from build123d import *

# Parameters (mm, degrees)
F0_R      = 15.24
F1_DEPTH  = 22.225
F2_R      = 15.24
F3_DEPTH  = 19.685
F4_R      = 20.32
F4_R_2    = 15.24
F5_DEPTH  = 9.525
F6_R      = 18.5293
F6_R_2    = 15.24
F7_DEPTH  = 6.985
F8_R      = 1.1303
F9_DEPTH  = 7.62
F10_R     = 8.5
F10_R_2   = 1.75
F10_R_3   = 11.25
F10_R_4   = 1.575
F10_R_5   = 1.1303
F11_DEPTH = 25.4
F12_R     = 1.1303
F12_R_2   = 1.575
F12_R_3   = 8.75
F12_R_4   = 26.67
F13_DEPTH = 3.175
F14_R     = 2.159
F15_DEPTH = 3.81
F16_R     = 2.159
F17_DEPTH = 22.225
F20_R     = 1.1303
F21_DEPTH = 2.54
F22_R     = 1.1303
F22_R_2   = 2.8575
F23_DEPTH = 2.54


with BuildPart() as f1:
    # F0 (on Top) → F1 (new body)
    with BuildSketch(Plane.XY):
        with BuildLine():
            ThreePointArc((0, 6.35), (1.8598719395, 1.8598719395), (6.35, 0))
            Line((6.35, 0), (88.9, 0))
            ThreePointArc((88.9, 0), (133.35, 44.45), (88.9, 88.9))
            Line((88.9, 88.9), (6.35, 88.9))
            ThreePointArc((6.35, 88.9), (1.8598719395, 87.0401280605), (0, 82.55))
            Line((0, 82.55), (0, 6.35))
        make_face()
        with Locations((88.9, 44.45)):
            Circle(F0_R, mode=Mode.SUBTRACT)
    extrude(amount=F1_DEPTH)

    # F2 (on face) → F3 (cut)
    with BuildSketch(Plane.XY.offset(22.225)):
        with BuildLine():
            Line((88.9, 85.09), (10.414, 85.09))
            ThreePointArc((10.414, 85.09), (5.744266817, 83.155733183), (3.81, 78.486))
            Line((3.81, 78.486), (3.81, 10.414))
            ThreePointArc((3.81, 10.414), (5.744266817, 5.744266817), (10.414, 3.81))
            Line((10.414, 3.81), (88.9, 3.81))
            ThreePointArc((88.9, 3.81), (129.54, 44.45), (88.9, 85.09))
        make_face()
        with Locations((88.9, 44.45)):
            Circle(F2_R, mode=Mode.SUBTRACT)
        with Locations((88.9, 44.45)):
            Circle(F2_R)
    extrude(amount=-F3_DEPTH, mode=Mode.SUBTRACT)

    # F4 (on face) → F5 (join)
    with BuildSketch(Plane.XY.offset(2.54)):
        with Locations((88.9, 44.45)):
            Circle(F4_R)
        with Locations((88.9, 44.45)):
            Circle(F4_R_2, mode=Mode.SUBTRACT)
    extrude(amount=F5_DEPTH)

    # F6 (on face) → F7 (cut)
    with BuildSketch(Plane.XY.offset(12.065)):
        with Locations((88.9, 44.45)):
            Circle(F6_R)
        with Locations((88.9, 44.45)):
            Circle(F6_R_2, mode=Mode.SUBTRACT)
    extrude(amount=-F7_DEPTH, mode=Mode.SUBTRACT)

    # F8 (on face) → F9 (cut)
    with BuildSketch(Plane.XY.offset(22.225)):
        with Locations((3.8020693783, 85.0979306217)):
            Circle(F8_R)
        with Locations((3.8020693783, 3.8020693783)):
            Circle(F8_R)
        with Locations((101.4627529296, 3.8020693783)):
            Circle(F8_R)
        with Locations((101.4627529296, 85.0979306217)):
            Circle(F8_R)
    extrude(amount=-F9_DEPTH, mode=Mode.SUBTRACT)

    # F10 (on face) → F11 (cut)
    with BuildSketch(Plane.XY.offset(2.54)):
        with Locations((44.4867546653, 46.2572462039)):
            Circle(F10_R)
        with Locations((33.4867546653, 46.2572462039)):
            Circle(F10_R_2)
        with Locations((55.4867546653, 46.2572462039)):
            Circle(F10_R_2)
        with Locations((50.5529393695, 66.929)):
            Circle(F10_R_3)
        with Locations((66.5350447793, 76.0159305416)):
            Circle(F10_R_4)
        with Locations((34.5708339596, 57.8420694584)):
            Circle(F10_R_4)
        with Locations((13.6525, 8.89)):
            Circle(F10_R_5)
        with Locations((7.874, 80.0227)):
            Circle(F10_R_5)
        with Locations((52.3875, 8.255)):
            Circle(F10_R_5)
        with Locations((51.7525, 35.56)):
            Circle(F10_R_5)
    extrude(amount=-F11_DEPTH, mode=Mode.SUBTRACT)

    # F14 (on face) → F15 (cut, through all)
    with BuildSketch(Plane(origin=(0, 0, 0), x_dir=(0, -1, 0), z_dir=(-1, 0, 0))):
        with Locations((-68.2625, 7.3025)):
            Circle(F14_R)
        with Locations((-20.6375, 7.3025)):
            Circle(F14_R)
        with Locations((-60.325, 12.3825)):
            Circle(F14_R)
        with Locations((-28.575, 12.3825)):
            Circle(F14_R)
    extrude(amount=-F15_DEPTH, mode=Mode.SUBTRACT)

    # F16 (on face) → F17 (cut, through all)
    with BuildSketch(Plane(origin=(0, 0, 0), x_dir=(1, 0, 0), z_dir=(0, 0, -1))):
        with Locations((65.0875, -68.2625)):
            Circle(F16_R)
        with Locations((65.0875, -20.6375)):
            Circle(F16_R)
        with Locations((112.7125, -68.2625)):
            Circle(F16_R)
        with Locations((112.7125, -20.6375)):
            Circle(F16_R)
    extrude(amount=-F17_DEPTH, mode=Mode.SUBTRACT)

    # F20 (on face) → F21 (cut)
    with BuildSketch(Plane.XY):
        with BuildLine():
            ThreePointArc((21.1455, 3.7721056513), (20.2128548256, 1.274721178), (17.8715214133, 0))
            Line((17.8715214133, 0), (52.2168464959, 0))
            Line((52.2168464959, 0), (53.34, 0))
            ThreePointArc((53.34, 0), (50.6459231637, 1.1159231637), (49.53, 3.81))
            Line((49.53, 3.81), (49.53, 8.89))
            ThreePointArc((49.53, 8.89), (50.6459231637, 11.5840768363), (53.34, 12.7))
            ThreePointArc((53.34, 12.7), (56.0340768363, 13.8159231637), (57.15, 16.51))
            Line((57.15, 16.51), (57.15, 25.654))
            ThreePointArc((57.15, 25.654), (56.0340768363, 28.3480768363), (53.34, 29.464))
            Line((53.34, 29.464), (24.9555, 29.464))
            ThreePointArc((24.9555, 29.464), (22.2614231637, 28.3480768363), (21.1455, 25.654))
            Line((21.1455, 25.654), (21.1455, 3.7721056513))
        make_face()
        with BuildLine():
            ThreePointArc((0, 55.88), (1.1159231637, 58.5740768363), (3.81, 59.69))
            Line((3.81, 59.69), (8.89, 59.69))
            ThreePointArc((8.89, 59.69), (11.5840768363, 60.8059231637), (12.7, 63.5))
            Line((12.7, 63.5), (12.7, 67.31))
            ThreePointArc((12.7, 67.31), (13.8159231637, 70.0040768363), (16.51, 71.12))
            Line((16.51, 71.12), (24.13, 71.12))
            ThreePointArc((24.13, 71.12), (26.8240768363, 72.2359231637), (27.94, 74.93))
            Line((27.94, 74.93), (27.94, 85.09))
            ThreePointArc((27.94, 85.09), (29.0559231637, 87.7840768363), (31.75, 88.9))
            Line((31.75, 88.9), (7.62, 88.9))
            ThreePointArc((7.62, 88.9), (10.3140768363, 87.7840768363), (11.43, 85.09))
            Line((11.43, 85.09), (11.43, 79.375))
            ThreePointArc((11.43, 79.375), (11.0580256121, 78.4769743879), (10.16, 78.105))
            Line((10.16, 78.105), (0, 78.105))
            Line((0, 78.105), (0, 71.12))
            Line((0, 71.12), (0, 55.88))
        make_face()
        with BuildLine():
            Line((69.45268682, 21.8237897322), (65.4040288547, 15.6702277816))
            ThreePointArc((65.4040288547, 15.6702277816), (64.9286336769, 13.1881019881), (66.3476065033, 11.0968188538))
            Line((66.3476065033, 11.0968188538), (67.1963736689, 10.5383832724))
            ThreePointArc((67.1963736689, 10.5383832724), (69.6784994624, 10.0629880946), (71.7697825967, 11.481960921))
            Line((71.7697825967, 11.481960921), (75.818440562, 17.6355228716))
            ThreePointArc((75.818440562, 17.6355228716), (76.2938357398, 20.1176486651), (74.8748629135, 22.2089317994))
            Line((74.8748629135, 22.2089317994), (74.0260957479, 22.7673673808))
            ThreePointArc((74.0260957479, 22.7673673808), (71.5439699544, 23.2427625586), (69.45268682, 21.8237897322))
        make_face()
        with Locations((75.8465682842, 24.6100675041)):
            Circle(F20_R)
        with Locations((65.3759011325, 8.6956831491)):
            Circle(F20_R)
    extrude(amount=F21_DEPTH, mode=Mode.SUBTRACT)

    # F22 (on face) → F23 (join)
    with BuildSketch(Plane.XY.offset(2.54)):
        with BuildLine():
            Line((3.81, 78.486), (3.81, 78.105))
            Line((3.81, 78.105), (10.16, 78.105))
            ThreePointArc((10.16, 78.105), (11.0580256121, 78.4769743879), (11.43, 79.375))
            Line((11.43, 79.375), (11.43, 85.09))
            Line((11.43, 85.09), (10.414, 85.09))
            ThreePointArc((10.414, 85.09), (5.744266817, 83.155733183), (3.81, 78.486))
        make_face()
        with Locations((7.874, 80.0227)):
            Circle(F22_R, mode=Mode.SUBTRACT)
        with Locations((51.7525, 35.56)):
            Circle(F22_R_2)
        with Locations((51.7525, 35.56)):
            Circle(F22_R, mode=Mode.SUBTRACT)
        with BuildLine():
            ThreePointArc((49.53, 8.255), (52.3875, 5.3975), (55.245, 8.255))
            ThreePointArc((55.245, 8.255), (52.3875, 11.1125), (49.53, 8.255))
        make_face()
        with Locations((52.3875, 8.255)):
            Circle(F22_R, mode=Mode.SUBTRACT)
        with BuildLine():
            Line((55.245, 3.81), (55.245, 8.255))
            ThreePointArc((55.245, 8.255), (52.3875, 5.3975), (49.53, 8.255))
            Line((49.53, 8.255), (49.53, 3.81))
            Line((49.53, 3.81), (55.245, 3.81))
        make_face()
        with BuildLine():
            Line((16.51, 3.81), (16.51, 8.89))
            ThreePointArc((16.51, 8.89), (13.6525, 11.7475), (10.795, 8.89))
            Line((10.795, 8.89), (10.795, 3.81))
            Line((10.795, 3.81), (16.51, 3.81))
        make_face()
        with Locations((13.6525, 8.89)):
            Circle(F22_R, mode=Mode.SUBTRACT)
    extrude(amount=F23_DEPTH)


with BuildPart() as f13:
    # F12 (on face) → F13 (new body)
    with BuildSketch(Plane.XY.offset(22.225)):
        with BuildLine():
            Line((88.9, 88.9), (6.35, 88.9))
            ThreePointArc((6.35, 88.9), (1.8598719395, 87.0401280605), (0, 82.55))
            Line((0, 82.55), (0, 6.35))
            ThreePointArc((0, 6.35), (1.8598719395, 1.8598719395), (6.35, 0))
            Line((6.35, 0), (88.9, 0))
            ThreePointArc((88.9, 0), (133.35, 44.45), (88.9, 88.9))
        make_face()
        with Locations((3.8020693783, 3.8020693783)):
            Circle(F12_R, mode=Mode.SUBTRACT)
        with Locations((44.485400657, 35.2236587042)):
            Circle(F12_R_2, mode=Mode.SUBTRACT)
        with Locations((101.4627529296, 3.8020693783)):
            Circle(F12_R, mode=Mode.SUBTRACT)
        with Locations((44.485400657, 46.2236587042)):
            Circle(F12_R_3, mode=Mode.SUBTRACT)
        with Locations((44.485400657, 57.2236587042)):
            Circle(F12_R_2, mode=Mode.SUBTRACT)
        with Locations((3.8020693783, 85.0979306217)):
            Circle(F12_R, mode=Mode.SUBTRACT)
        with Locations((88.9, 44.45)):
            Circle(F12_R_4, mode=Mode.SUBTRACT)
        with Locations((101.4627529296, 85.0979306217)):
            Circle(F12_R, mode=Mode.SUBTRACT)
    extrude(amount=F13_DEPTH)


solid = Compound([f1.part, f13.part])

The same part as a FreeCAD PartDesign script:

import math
import FreeCAD as App
import Part
import Sketcher

V = App.Vector
Q = App.Units.Quantity

doc = App.newDocument("Part")
body = doc.addObject("PartDesign::Body", "Body")

# Sketch on XY plane
sketch1 = doc.addObject("Sketcher::SketchObject", "Sketch")
body.addObject(sketch1)
sketch1.AttachmentSupport = (doc.XY_Plane, [""])
sketch1.MapMode = "FlatFace"
sketch1.addGeometry([
    Part.ArcOfCircle(Part.Circle(V(6.35, 6.35, 0), V(0, 0, 1), 6.35), math.radians(180), math.radians(270)),  # 0
    Part.LineSegment(V(6.35, 0, 0), V(88.9, 0, 0)),  # 1
    Part.ArcOfCircle(Part.Circle(V(88.9, 44.45, 0), V(0, 0, 1), 44.45), math.radians(-90), math.radians(90)),  # 2
    Part.LineSegment(V(88.9, 88.9, 0), V(6.35, 88.9, 0)),  # 3
    Part.ArcOfCircle(Part.Circle(V(6.35, 82.55, 0), V(0, 0, 1), 6.35), math.radians(90), math.radians(180)),  # 4
    Part.LineSegment(V(0, 82.55, 0), V(0, 6.35, 0)),  # 5
    Part.Circle(V(88.9, 44.45, 0), V(0, 0, 1), 15.24),  # 6
], False)
sketch1.addConstraint([
    Sketcher.Constraint("Tangent", 0, 2, 1, 1),
    Sketcher.Constraint("Tangent", 1, 2, 2, 1),
    Sketcher.Constraint("Tangent", 2, 2, 3, 1),
    Sketcher.Constraint("Tangent", 3, 2, 4, 1),
    Sketcher.Constraint("Tangent", 4, 2, 5, 1),
    Sketcher.Constraint("Tangent", 5, 2, 0, 1),
    Sketcher.Constraint("Horizontal", 1),
    Sketcher.Constraint("Horizontal", 3),
    Sketcher.Constraint("Vertical", 5),
    Sketcher.Constraint("Coincident", 6, 3, 2, 3),
    Sketcher.Constraint("Equal", 0, 4),
    Sketcher.Constraint("PointOnObject", 0, 2, -1),
    Sketcher.Constraint("PointOnObject", 4, 2, -2),
    Sketcher.Constraint("Diameter", 6, Q("1.2 in")),
    Sketcher.Constraint("DistanceY", 5, 2, 5, 1, Q("3 in")),
    Sketcher.Constraint("Radius", 0, Q("0.25 in")),
    Sketcher.Constraint("DistanceX", 1, 1, 1, 2, Q("3.25 in")),
])
pad1 = doc.addObject("PartDesign::Pad", "Pad")
body.addObject(pad1)
pad1.Profile = sketch1
pad1.Length = Q("0.875 in")

# Sketch on XY plane
sketch2 = doc.addObject("Sketcher::SketchObject", "Sketch001")
body.addObject(sketch2)
sketch2.AttachmentSupport = (doc.XY_Plane, [""])
sketch2.MapMode = "FlatFace"
sketch2.AttachmentOffset = App.Placement(V(0, 0, 0.875 * 25.4), App.Rotation())
sketch2.addGeometry([
    Part.LineSegment(V(88.9, 85.09, 0), V(10.414, 85.09, 0)),  # 0
    Part.ArcOfCircle(Part.Circle(V(10.414, 78.486, 0), V(0, 0, 1), 6.604), math.radians(90), math.radians(180)),  # 1
    Part.LineSegment(V(3.81, 78.486, 0), V(3.81, 10.414, 0)),  # 2
    Part.ArcOfCircle(Part.Circle(V(10.414, 10.414, 0), V(0, 0, 1), 6.604), math.radians(180), math.radians(270)),  # 3
    Part.LineSegment(V(10.414, 3.81, 0), V(88.9, 3.81, 0)),  # 4
    Part.ArcOfCircle(Part.Circle(V(88.9, 44.45, 0), V(0, 0, 1), 40.64), math.radians(-90), math.radians(90)),  # 5
], False)
sketch2.addConstraint([
    Sketcher.Constraint("Tangent", 0, 2, 1, 1),
    Sketcher.Constraint("Tangent", 1, 2, 2, 1),
    Sketcher.Constraint("Tangent", 2, 2, 3, 1),
    Sketcher.Constraint("Tangent", 3, 2, 4, 1),
    Sketcher.Constraint("Tangent", 4, 2, 5, 1),
    Sketcher.Constraint("Tangent", 5, 2, 0, 1),
    Sketcher.Constraint("Horizontal", 0),
    Sketcher.Constraint("Vertical", 2),
    Sketcher.Constraint("Horizontal", 4),
    Sketcher.Constraint("Equal", 1, 3),
    Sketcher.Constraint("Radius", 5, Q("1.6 in")),
    Sketcher.Constraint("Radius", 1, Q("0.26 in")),
    Sketcher.Constraint("DistanceX", 0, 2, 0, 1, Q("3.09 in")),
    Sketcher.Constraint("DistanceX", -1, 1, 5, 3, Q("3.5 in")),
    Sketcher.Constraint("DistanceY", -1, 1, 1, 3, Q("3.09 in")),
])
pocket1 = doc.addObject("PartDesign::Pocket", "Pocket")
body.addObject(pocket1)
pocket1.Profile = sketch2
pocket1.Length = Q("0.775 in")

# Sketch on XY plane
sketch3 = doc.addObject("Sketcher::SketchObject", "Sketch002")
body.addObject(sketch3)
sketch3.AttachmentSupport = (doc.XY_Plane, [""])
sketch3.MapMode = "FlatFace"
sketch3.AttachmentOffset = App.Placement(V(0, 0, 0.1 * 25.4), App.Rotation())
sketch3.addGeometry([
    Part.Circle(V(88.9, 44.45, 0), V(0, 0, 1), 20.32),
    Part.Circle(V(88.9, 44.45, 0), V(0, 0, 1), 15.24),
], False)
sketch3.addConstraint([
    Sketcher.Constraint("Coincident", 1, 3, 0, 3),
    Sketcher.Constraint("Diameter", 0, Q("1.6 in")),
    Sketcher.Constraint("Diameter", 1, Q("1.2 in")),
    Sketcher.Constraint("DistanceX", -1, 1, 0, 3, Q("3.5 in")),
    Sketcher.Constraint("DistanceY", -1, 1, 0, 3, Q("1.75 in")),
])
pad2 = doc.addObject("PartDesign::Pad", "Pad001")
body.addObject(pad2)
pad2.Profile = sketch3
pad2.Length = Q("0.375 in")

# Sketch on XY plane
sketch4 = doc.addObject("Sketcher::SketchObject", "Sketch003")
body.addObject(sketch4)
sketch4.AttachmentSupport = (doc.XY_Plane, [""])
sketch4.MapMode = "FlatFace"
sketch4.AttachmentOffset = App.Placement(V(0, 0, 0.475 * 25.4), App.Rotation())
sketch4.addGeometry([
    Part.Circle(V(88.9, 44.45, 0), V(0, 0, 1), 18.5293),
    Part.Circle(V(88.9, 44.45, 0), V(0, 0, 1), 15.24),
], False)
sketch4.addConstraint([
    Sketcher.Constraint("Coincident", 1, 3, 0, 3),
    Sketcher.Constraint("Diameter", 1, Q("1.2 in")),
    Sketcher.Constraint("Diameter", 0, Q("1.459 in")),
    Sketcher.Constraint("DistanceX", -1, 1, 0, 3, Q("3.5 in")),
    Sketcher.Constraint("DistanceY", -1, 1, 0, 3, Q("1.75 in")),
])
pocket2 = doc.addObject("PartDesign::Pocket", "Pocket001")
body.addObject(pocket2)
pocket2.Profile = sketch4
pocket2.Length = Q("0.275 in")

# Sketch on XY plane
sketch5 = doc.addObject("Sketcher::SketchObject", "Sketch004")
body.addObject(sketch5)
sketch5.AttachmentSupport = (doc.XY_Plane, [""])
sketch5.MapMode = "FlatFace"
sketch5.AttachmentOffset = App.Placement(V(0, 0, 0.875 * 25.4), App.Rotation())
sketch5.addGeometry([
    Part.Circle(V(3.802069, 85.097931, 0), V(0, 0, 1), 1.1303),
    Part.Circle(V(3.802069, 3.802069, 0), V(0, 0, 1), 1.1303),
    Part.Circle(V(101.462753, 3.802069, 0), V(0, 0, 1), 1.1303),
    Part.Circle(V(101.462753, 85.097931, 0), V(0, 0, 1), 1.1303),
], False)
sketch5.addConstraint([
    Sketcher.Constraint("Equal", 0, 1),
    Sketcher.Constraint("Equal", 1, 2),
    Sketcher.Constraint("Equal", 2, 3),
    Sketcher.Constraint("Horizontal", 1, 3, 2, 3),
    Sketcher.Constraint("Horizontal", 0, 3, 3, 3),
    Sketcher.Constraint("Vertical", 0, 3, 1, 3),
    Sketcher.Constraint("Vertical", 2, 3, 3, 3),
    Sketcher.Constraint("Diameter", 0, Q("0.089 in")),
    Sketcher.Constraint("DistanceX", -1, 1, 0, 3, Q("3.802069 mm")),
    Sketcher.Constraint("DistanceY", -1, 1, 0, 3, Q("85.097931 mm")),
    Sketcher.Constraint("DistanceY", -1, 1, 1, 3, Q("3.802069 mm")),
    Sketcher.Constraint("DistanceX", -1, 1, 2, 3, Q("101.462753 mm")),
])
pocket3 = doc.addObject("PartDesign::Pocket", "Pocket002")
body.addObject(pocket3)
pocket3.Profile = sketch5
pocket3.Length = Q("0.3 in")

# Sketch on XY plane
sketch6 = doc.addObject("Sketcher::SketchObject", "Sketch005")
body.addObject(sketch6)
sketch6.AttachmentSupport = (doc.XY_Plane, [""])
sketch6.MapMode = "FlatFace"
sketch6.AttachmentOffset = App.Placement(V(0, 0, 0.1 * 25.4), App.Rotation())
sketch6.addGeometry([
    Part.Circle(V(44.486755, 46.257246, 0), V(0, 0, 1), 8.5),  # 0
    Part.Circle(V(33.486755, 46.257246, 0), V(0, 0, 1), 1.75),  # 1
    Part.Circle(V(55.486755, 46.257246, 0), V(0, 0, 1), 1.75),  # 2
    Part.Circle(V(50.552939, 66.929, 0), V(0, 0, 1), 11.25),  # 3
    Part.Circle(V(66.535045, 76.015931, 0), V(0, 0, 1), 1.575),  # 4
    Part.Circle(V(34.570834, 57.842069, 0), V(0, 0, 1), 1.575),  # 5
    Part.Circle(V(13.6525, 8.89, 0), V(0, 0, 1), 1.1303),  # 6
    Part.Circle(V(7.874, 80.0227, 0), V(0, 0, 1), 1.1303),  # 7
    Part.Circle(V(52.3875, 8.255, 0), V(0, 0, 1), 1.1303),  # 8
    Part.Circle(V(51.7525, 35.56, 0), V(0, 0, 1), 1.1303),  # 9
], False)
sketch6.addConstraint([
    Sketcher.Constraint("Equal", 1, 2),
    Sketcher.Constraint("Equal", 4, 5),
    Sketcher.Constraint("Equal", 6, 7),
    Sketcher.Constraint("Equal", 7, 8),
    Sketcher.Constraint("Equal", 8, 9),
    Sketcher.Constraint("Horizontal", 0, 3, 1, 3),
    Sketcher.Constraint("Horizontal", 1, 3, 2, 3),
    Sketcher.Constraint("Diameter", 6, Q("0.089 in")),
    Sketcher.Constraint("DistanceY", -1, 1, 9, 3, Q("1.4 in")),
    Sketcher.Constraint("Diameter", 0, Q("17 mm")),
    Sketcher.Constraint("Diameter", 1, Q("3.5 mm")),
    Sketcher.Constraint("Diameter", 3, Q("22.5 mm")),
    Sketcher.Constraint("Diameter", 4, Q("3.15 mm")),
    Sketcher.Constraint("DistanceY", -1, 1, 6, 3, Q("0.35 in")),
    Sketcher.Constraint("DistanceX", -1, 1, 7, 3, Q("0.31 in")),
    Sketcher.Constraint("DistanceY", -1, 1, 3, 3, Q("2.635 in")),
    Sketcher.Constraint("DistanceX", -1, 1, 8, 3, Q("2.0625 in")),
    Sketcher.Constraint("DistanceY", -1, 1, 8, 3, Q("0.325 in")),
    Sketcher.Constraint("DistanceX", 6, 3, 8, 3, Q("1.525 in")),
    Sketcher.Constraint("DistanceX", 9, 3, 8, 3, Q("0.025 in")),
    Sketcher.Constraint("DistanceY", -1, 1, 7, 3, Q("3.1505 in")),
    Sketcher.Constraint("DistanceX", 1, 3, 0, 3, Q("11 mm")),
    Sketcher.Constraint("DistanceX", 0, 3, 2, 3, Q("11 mm")),
    Sketcher.Constraint("DistanceX", -1, 1, 3, 3, Q("50.552939 mm")),
    Sketcher.Constraint("DistanceY", -1, 1, 4, 3, Q("76.015931 mm")),
    Sketcher.Constraint("DistanceY", -1, 1, 5, 3, Q("57.842069 mm")),
    Sketcher.Constraint("DistanceX", 2, 3, 4, 3, Q("11.04829 mm")),
    Sketcher.Constraint("DistanceX", 1, 3, 5, 3, Q("1.084079 mm")),
    Sketcher.Constraint("DistanceX", -1, 1, 0, 3, Q("44.486755 mm")),
    Sketcher.Constraint("DistanceY", -1, 1, 0, 3, Q("46.257246 mm")),
])
pocket4 = doc.addObject("PartDesign::Pocket", "Pocket003")
body.addObject(pocket4)
pocket4.Profile = sketch6
pocket4.Length = Q("1 in")

# Sketch on YZ plane
sketch7 = doc.addObject("Sketcher::SketchObject", "Sketch006")
body.addObject(sketch7)
sketch7.AttachmentSupport = (doc.YZ_Plane, [""])
sketch7.MapMode = "FlatFace"
sketch7.addGeometry([
    Part.Circle(V(68.2625, 7.3025, 0), V(0, 0, 1), 2.159),
    Part.Circle(V(20.6375, 7.3025, 0), V(0, 0, 1), 2.159),
    Part.Circle(V(60.325, 12.3825, 0), V(0, 0, 1), 2.159),
    Part.Circle(V(28.575, 12.3825, 0), V(0, 0, 1), 2.159),
], False)
sketch7.addConstraint([
    Sketcher.Constraint("Equal", 0, 1),
    Sketcher.Constraint("Equal", 1, 2),
    Sketcher.Constraint("Equal", 2, 3),
    Sketcher.Constraint("Horizontal", 0, 3, 1, 3),
    Sketcher.Constraint("Horizontal", 2, 3, 3, 3),
    Sketcher.Constraint("Diameter", 0, Q("0.17 in")),
    Sketcher.Constraint("DistanceY", 0, 3, 2, 3, Q("0.2 in")),
    Sketcher.Constraint("DistanceX", 3, 3, 2, 3, Q("1.25 in")),
    Sketcher.Constraint("DistanceX", -1, 1, 0, 3, Q("2.6875 in")),
    Sketcher.Constraint("DistanceX", -1, 1, 1, 3, Q("0.8125 in")),
    Sketcher.Constraint("DistanceX", -1, 1, 2, 3, Q("2.375 in")),
    Sketcher.Constraint("DistanceY", -1, 1, 0, 3, Q("0.2875 in")),
])
pocket5 = doc.addObject("PartDesign::Pocket", "Pocket004")
body.addObject(pocket5)
pocket5.Profile = sketch7
pocket5.Length = Q("0.15 in")
pocket5.Reversed = True

# Sketch on XY plane
sketch8 = doc.addObject("Sketcher::SketchObject", "Sketch007")
body.addObject(sketch8)
sketch8.AttachmentSupport = (doc.XY_Plane, [""])
sketch8.MapMode = "FlatFace"
sketch8.addGeometry([
    Part.Circle(V(65.0875, 68.2625, 0), V(0, 0, 1), 2.159),
    Part.Circle(V(65.0875, 20.6375, 0), V(0, 0, 1), 2.159),
    Part.Circle(V(112.7125, 68.2625, 0), V(0, 0, 1), 2.159),
    Part.Circle(V(112.7125, 20.6375, 0), V(0, 0, 1), 2.159),
], False)
sketch8.addConstraint([
    Sketcher.Constraint("Equal", 0, 1),
    Sketcher.Constraint("Equal", 1, 2),
    Sketcher.Constraint("Equal", 2, 3),
    Sketcher.Constraint("Horizontal", 0, 3, 2, 3),
    Sketcher.Constraint("Horizontal", 1, 3, 3, 3),
    Sketcher.Constraint("Vertical", 0, 3, 1, 3),
    Sketcher.Constraint("Vertical", 2, 3, 3, 3),
    Sketcher.Constraint("Diameter", 0, Q("0.17 in")),
    Sketcher.Constraint("DistanceX", -1, 1, 0, 3, Q("2.5625 in")),
    Sketcher.Constraint("DistanceY", -1, 1, 0, 3, Q("2.6875 in")),
    Sketcher.Constraint("DistanceY", -1, 1, 1, 3, Q("0.8125 in")),
    Sketcher.Constraint("DistanceX", -1, 1, 2, 3, Q("4.4375 in")),
])
pocket6 = doc.addObject("PartDesign::Pocket", "Pocket005")
body.addObject(pocket6)
pocket6.Profile = sketch8
pocket6.Type = "ThroughAll"
pocket6.Reversed = True

# Sketch on XY plane
sketch9 = doc.addObject("Sketcher::SketchObject", "Sketch008")
body.addObject(sketch9)
sketch9.AttachmentSupport = (doc.XY_Plane, [""])
sketch9.MapMode = "FlatFace"
sketch9.addGeometry([
    Part.ArcOfCircle(Part.Circle(V(17.3355, 3.772106, 0), V(0, 0, 1), 3.81), math.radians(-81.912338), math.radians(0)),  # 0
    Part.LineSegment(V(17.871521, 0, 0), V(53.34, 0, 0)),  # 1
    Part.ArcOfCircle(Part.Circle(V(53.34, 3.81, 0), V(0, 0, 1), 3.81), math.radians(180), math.radians(270)),  # 2
    Part.LineSegment(V(49.53, 3.81, 0), V(49.53, 8.89, 0)),  # 3
    Part.ArcOfCircle(Part.Circle(V(53.34, 8.89, 0), V(0, 0, 1), 3.81), math.radians(90), math.radians(180)),  # 4
    Part.ArcOfCircle(Part.Circle(V(53.34, 16.51, 0), V(0, 0, 1), 3.81), math.radians(-90), math.radians(0)),  # 5
    Part.LineSegment(V(57.15, 16.51, 0), V(57.15, 25.654, 0)),  # 6
    Part.ArcOfCircle(Part.Circle(V(53.34, 25.654, 0), V(0, 0, 1), 3.81), math.radians(0), math.radians(90)),  # 7
    Part.LineSegment(V(53.34, 29.464, 0), V(24.9555, 29.464, 0)),  # 8
    Part.ArcOfCircle(Part.Circle(V(24.9555, 25.654, 0), V(0, 0, 1), 3.81), math.radians(90), math.radians(180)),  # 9
    Part.LineSegment(V(21.1455, 25.654, 0), V(21.1455, 3.772106, 0)),  # 10
    Part.ArcOfCircle(Part.Circle(V(3.81, 55.88, 0), V(0, 0, 1), 3.81), math.radians(90), math.radians(180)),  # 11
    Part.LineSegment(V(3.81, 59.69, 0), V(8.89, 59.69, 0)),  # 12
    Part.ArcOfCircle(Part.Circle(V(8.89, 63.5, 0), V(0, 0, 1), 3.81), math.radians(-90), math.radians(0)),  # 13
    Part.LineSegment(V(12.7, 63.5, 0), V(12.7, 67.31, 0)),  # 14
    Part.ArcOfCircle(Part.Circle(V(16.51, 67.31, 0), V(0, 0, 1), 3.81), math.radians(90), math.radians(180)),  # 15
    Part.LineSegment(V(16.51, 71.12, 0), V(24.13, 71.12, 0)),  # 16
    Part.ArcOfCircle(Part.Circle(V(24.13, 74.93, 0), V(0, 0, 1), 3.81), math.radians(-90), math.radians(0)),  # 17
    Part.LineSegment(V(27.94, 74.93, 0), V(27.94, 85.09, 0)),  # 18
    Part.ArcOfCircle(Part.Circle(V(31.75, 85.09, 0), V(0, 0, 1), 3.81), math.radians(90), math.radians(180)),  # 19
    Part.LineSegment(V(31.75, 88.9, 0), V(7.62, 88.9, 0)),  # 20
    Part.ArcOfCircle(Part.Circle(V(7.62, 85.09, 0), V(0, 0, 1), 3.81), math.radians(0), math.radians(90)),  # 21
    Part.LineSegment(V(11.43, 85.09, 0), V(11.43, 79.375, 0)),  # 22
    Part.ArcOfCircle(Part.Circle(V(10.16, 79.375, 0), V(0, 0, 1), 1.27), math.radians(-90), math.radians(0)),  # 23
    Part.LineSegment(V(10.16, 78.105, 0), V(0, 78.105, 0)),  # 24
    Part.LineSegment(V(0, 78.105, 0), V(0, 55.88, 0)),  # 25
    Part.LineSegment(V(69.452687, 21.82379, 0), V(65.404029, 15.670228, 0)),  # 26
    Part.ArcOfCircle(Part.Circle(V(68.162522, 13.855312, 0), V(0, 0, 1), 3.302), math.radians(146.65759), math.radians(236.65759)),  # 27
    Part.LineSegment(V(66.347607, 11.096819, 0), V(67.196374, 10.538383, 0)),  # 28
    Part.ArcOfCircle(Part.Circle(V(69.011289, 13.296877, 0), V(0, 0, 1), 3.302), math.radians(-123.34241), math.radians(-33.34241)),  # 29
    Part.LineSegment(V(71.769783, 11.481961, 0), V(75.818441, 17.635523, 0)),  # 30
    Part.ArcOfCircle(Part.Circle(V(73.059947, 19.450439, 0), V(0, 0, 1), 3.302), math.radians(-33.34241), math.radians(56.65759)),  # 31
    Part.LineSegment(V(74.874863, 22.208932, 0), V(74.026096, 22.767367, 0)),  # 32
    Part.ArcOfCircle(Part.Circle(V(72.21118, 20.008874, 0), V(0, 0, 1), 3.302), math.radians(56.65759), math.radians(146.65759)),  # 33
    Part.Circle(V(75.846568, 24.610068, 0), V(0, 0, 1), 1.1303),  # 34
    Part.Circle(V(65.375901, 8.695683, 0), V(0, 0, 1), 1.1303),  # 35
], False)
sketch9.addConstraint([
    Sketcher.Constraint("Coincident", 0, 1, 1, 1),
    Sketcher.Constraint("Tangent", 1, 2, 2, 2),
    Sketcher.Constraint("Tangent", 2, 1, 3, 1),
    Sketcher.Constraint("Tangent", 3, 2, 4, 2),
    Sketcher.Constraint("Tangent", 4, 1, 5, 1),
    Sketcher.Constraint("Tangent", 5, 2, 6, 1),
    Sketcher.Constraint("Tangent", 6, 2, 7, 1),
    Sketcher.Constraint("Tangent", 7, 2, 8, 1),
    Sketcher.Constraint("Tangent", 8, 2, 9, 1),
    Sketcher.Constraint("Tangent", 9, 2, 10, 1),
    Sketcher.Constraint("Tangent", 10, 2, 0, 2),
    Sketcher.Constraint("Tangent", 11, 1, 12, 1),
    Sketcher.Constraint("Tangent", 12, 2, 13, 1),
    Sketcher.Constraint("Tangent", 13, 2, 14, 1),
    Sketcher.Constraint("Tangent", 14, 2, 15, 2),
    Sketcher.Constraint("Tangent", 15, 1, 16, 1),
    Sketcher.Constraint("Tangent", 16, 2, 17, 1),
    Sketcher.Constraint("Tangent", 17, 2, 18, 1),
    Sketcher.Constraint("Tangent", 18, 2, 19, 2),
    Sketcher.Constraint("Tangent", 19, 1, 20, 1),
    Sketcher.Constraint("Tangent", 20, 2, 21, 2),
    Sketcher.Constraint("Tangent", 21, 1, 22, 1),
    Sketcher.Constraint("Tangent", 22, 2, 23, 2),
    Sketcher.Constraint("Tangent", 23, 1, 24, 1),
    Sketcher.Constraint("Coincident", 24, 2, 25, 1),
    Sketcher.Constraint("Tangent", 25, 2, 11, 2),
    Sketcher.Constraint("Tangent", 26, 2, 27, 1),
    Sketcher.Constraint("Tangent", 27, 2, 28, 1),
    Sketcher.Constraint("Tangent", 28, 2, 29, 1),
    Sketcher.Constraint("Tangent", 29, 2, 30, 1),
    Sketcher.Constraint("Tangent", 30, 2, 31, 1),
    Sketcher.Constraint("Tangent", 31, 2, 32, 1),
    Sketcher.Constraint("Tangent", 32, 2, 33, 1),
    Sketcher.Constraint("Tangent", 33, 2, 26, 1),
    Sketcher.Constraint("Horizontal", 1),
    Sketcher.Constraint("Vertical", 3),
    Sketcher.Constraint("Vertical", 6),
    Sketcher.Constraint("Horizontal", 8),
    Sketcher.Constraint("Vertical", 10),
    Sketcher.Constraint("Horizontal", 12),
    Sketcher.Constraint("Vertical", 14),
    Sketcher.Constraint("Horizontal", 16),
    Sketcher.Constraint("Vertical", 18),
    Sketcher.Constraint("Horizontal", 20),
    Sketcher.Constraint("Vertical", 22),
    Sketcher.Constraint("Horizontal", 24),
    Sketcher.Constraint("Vertical", 25),
    Sketcher.Constraint("Equal", 0, 2),
    Sketcher.Constraint("Equal", 2, 4),
    Sketcher.Constraint("Equal", 4, 5),
    Sketcher.Constraint("Equal", 5, 7),
    Sketcher.Constraint("Equal", 7, 9),
    Sketcher.Constraint("Equal", 9, 11),
    Sketcher.Constraint("Equal", 11, 13),
    Sketcher.Constraint("Equal", 13, 15),
    Sketcher.Constraint("Equal", 15, 17),
    Sketcher.Constraint("Equal", 17, 19),
    Sketcher.Constraint("Equal", 19, 21),
    Sketcher.Constraint("Equal", 27, 29),
    Sketcher.Constraint("Equal", 29, 31),
    Sketcher.Constraint("Equal", 31, 33),
    Sketcher.Constraint("Equal", 34, 35),
    Sketcher.Constraint("PointOnObject", 0, 1, -1),
    Sketcher.Constraint("PointOnObject", 24, 2, -2),
    Sketcher.Constraint("Perpendicular", 26, 28),
    Sketcher.Constraint("Perpendicular", 28, 30),
    Sketcher.Constraint("Perpendicular", 30, 32),
    Sketcher.Constraint("Vertical", 4, 3, 5, 3),
    Sketcher.Constraint("Equal", 12, 3),
    Sketcher.Constraint("Equal", 24, 18),
    Sketcher.Constraint("Radius", 0, Q("0.15 in")),
    Sketcher.Constraint("Radius", 23, Q("0.05 in")),
    Sketcher.Constraint("Radius", 27, Q("0.13 in")),
    Sketcher.Constraint("Diameter", 34, Q("0.089 in")),
    Sketcher.Constraint("DistanceX", 12, 1, 12, 2, Q("0.2 in")),
    Sketcher.Constraint("DistanceX", 16, 1, 16, 2, Q("0.3 in")),
    Sketcher.Constraint("DistanceX", 24, 2, 24, 1, Q("0.4 in")),
    Sketcher.Constraint("DistanceY", 5, 3, 15, 3, Q("2 in")),
    Sketcher.Constraint("DistanceY", 6, 1, 6, 2, Q("0.36 in")),
    Sketcher.Constraint("DistanceY", 14, 1, 14, 2, Q("0.15 in")),
    Sketcher.Constraint("DistanceX", -1, 1, 2, 3, Q("2.1 in")),
    Sketcher.Constraint("Distance", 26, Q("0.29 in")),
    Sketcher.Constraint("Distance", 28, Q("0.04 in")),
    Sketcher.Constraint("DistanceY", 22, 2, 22, 1, Q("0.225 in")),
    Sketcher.Constraint("DistanceX", 8, 2, 8, 1, Q("1.1175 in")),
    Sketcher.Constraint("DistanceX", 1, 1, 1, 2, Q("35.468479 mm")),
    Sketcher.Constraint("DistanceX", -1, 1, 35, 3, Q("65.375901 mm")),
    Sketcher.Constraint("DistanceY", 35, 3, 28, 2, Q("1.8427 mm")),
    Sketcher.Constraint("DistanceY", 32, 2, 34, 3, Q("1.8427 mm")),
    Sketcher.Constraint("DistanceX", -1, 1, 29, 3, Q("69.011289 mm")),
    Sketcher.Constraint("DistanceY", -1, 1, 31, 3, Q("19.450439 mm")),
    Sketcher.Constraint("DistanceX", -1, 1, 33, 3, Q("72.21118 mm")),
    Sketcher.Constraint("DistanceX", -1, 1, 34, 3, Q("75.846568 mm")),
])
pocket7 = doc.addObject("PartDesign::Pocket", "Pocket006")
body.addObject(pocket7)
pocket7.Profile = sketch9
pocket7.Length = Q("0.1 in")
pocket7.Reversed = True

# Sketch on XY plane
sketch10 = doc.addObject("Sketcher::SketchObject", "Sketch009")
body.addObject(sketch10)
sketch10.AttachmentSupport = (doc.XY_Plane, [""])
sketch10.MapMode = "FlatFace"
sketch10.AttachmentOffset = App.Placement(V(0, 0, 0.1 * 25.4), App.Rotation())
sketch10.addGeometry([
    Part.LineSegment(V(3.81, 78.486, 0), V(3.81, 78.105, 0)),  # 0
    Part.LineSegment(V(3.81, 78.105, 0), V(10.16, 78.105, 0)),  # 1
    Part.ArcOfCircle(Part.Circle(V(10.16, 79.375, 0), V(0, 0, 1), 1.27), math.radians(-90), math.radians(0)),  # 2
    Part.LineSegment(V(11.43, 79.375, 0), V(11.43, 85.09, 0)),  # 3
    Part.LineSegment(V(11.43, 85.09, 0), V(10.414, 85.09, 0)),  # 4
    Part.ArcOfCircle(Part.Circle(V(10.414, 78.486, 0), V(0, 0, 1), 6.604), math.radians(90), math.radians(180)),  # 5
    Part.Circle(V(7.874, 80.0227, 0), V(0, 0, 1), 1.1303),  # 6
    Part.Circle(V(51.7525, 35.56, 0), V(0, 0, 1), 2.8575),  # 7
    Part.Circle(V(51.7525, 35.56, 0), V(0, 0, 1), 1.1303),  # 8
    Part.ArcOfCircle(Part.Circle(V(52.3875, 8.255, 0), V(0, 0, 1), 2.8575), math.radians(0), math.radians(180)),  # 9
    Part.LineSegment(V(49.53, 8.255, 0), V(49.53, 3.81, 0)),  # 10
    Part.LineSegment(V(49.53, 3.81, 0), V(55.245, 3.81, 0)),  # 11
    Part.LineSegment(V(55.245, 3.81, 0), V(55.245, 8.255, 0)),  # 12
    Part.Circle(V(52.3875, 8.255, 0), V(0, 0, 1), 1.1303),  # 13
    Part.LineSegment(V(16.51, 3.81, 0), V(16.51, 8.89, 0)),  # 14
    Part.ArcOfCircle(Part.Circle(V(13.6525, 8.89, 0), V(0, 0, 1), 2.8575), math.radians(0), math.radians(180)),  # 15
    Part.LineSegment(V(10.795, 8.89, 0), V(10.795, 3.81, 0)),  # 16
    Part.LineSegment(V(10.795, 3.81, 0), V(16.51, 3.81, 0)),  # 17
    Part.Circle(V(13.6525, 8.89, 0), V(0, 0, 1), 1.1303),  # 18
], False)
sketch10.addConstraint([
    Sketcher.Constraint("Coincident", 0, 2, 1, 1),
    Sketcher.Constraint("Tangent", 1, 2, 2, 1),
    Sketcher.Constraint("Tangent", 2, 2, 3, 1),
    Sketcher.Constraint("Coincident", 3, 2, 4, 1),
    Sketcher.Constraint("Tangent", 4, 2, 5, 1),
    Sketcher.Constraint("Tangent", 5, 2, 0, 1),
    Sketcher.Constraint("Tangent", 9, 2, 10, 1),
    Sketcher.Constraint("Coincident", 10, 2, 11, 1),
    Sketcher.Constraint("Coincident", 11, 2, 12, 1),
    Sketcher.Constraint("Tangent", 12, 2, 9, 1),
    Sketcher.Constraint("Tangent", 14, 2, 15, 1),
    Sketcher.Constraint("Tangent", 15, 2, 16, 1),
    Sketcher.Constraint("Coincident", 16, 2, 17, 1),
    Sketcher.Constraint("Coincident", 17, 2, 14, 1),
    Sketcher.Constraint("Vertical", 0),
    Sketcher.Constraint("Horizontal", 1),
    Sketcher.Constraint("Vertical", 3),
    Sketcher.Constraint("Horizontal", 4),
    Sketcher.Constraint("Vertical", 10),
    Sketcher.Constraint("Horizontal", 11),
    Sketcher.Constraint("Vertical", 12),
    Sketcher.Constraint("Vertical", 14),
    Sketcher.Constraint("Vertical", 16),
    Sketcher.Constraint("Horizontal", 17),
    Sketcher.Constraint("Coincident", 8, 3, 7, 3),
    Sketcher.Constraint("Coincident", 13, 3, 9, 3),
    Sketcher.Constraint("Coincident", 18, 3, 15, 3),
    Sketcher.Constraint("Equal", 6, 8),
    Sketcher.Constraint("Equal", 7, 9),
    Sketcher.Constraint("Equal", 8, 13),
    Sketcher.Constraint("Equal", 9, 15),
    Sketcher.Constraint("Equal", 13, 18),
    Sketcher.Constraint("Horizontal", 11, 2, 16, 2),
    Sketcher.Constraint("Equal", 17, 3),
    Sketcher.Constraint("Radius", 2, Q("0.05 in")),
    Sketcher.Constraint("Radius", 5, Q("0.26 in")),
    Sketcher.Constraint("Diameter", 6, Q("0.089 in")),
    Sketcher.Constraint("Diameter", 7, Q("0.225 in")),
    Sketcher.Constraint("DistanceY", 14, 1, 14, 2, Q("0.2 in")),
    Sketcher.Constraint("DistanceX", 1, 1, 1, 2, Q("0.25 in")),
    Sketcher.Constraint("DistanceX", -1, 1, 2, 3, Q("0.4 in")),
    Sketcher.Constraint("DistanceY", -1, 1, 7, 3, Q("1.4 in")),
    Sketcher.Constraint("DistanceX", 6, 3, 5, 3, Q("0.1 in")),
    Sketcher.Constraint("DistanceY", 9, 3, 2, 3, Q("2.8 in")),
    Sketcher.Constraint("DistanceX", 15, 3, 7, 3, Q("1.5 in")),
    Sketcher.Constraint("DistanceX", 14, 2, 9, 2, Q("1.3 in")),
    Sketcher.Constraint("DistanceY", 10, 2, 10, 1, Q("0.175 in")),
    Sketcher.Constraint("DistanceY", -1, 1, 5, 3, Q("3.09 in")),
    Sketcher.Constraint("DistanceX", -1, 1, 9, 2, Q("1.95 in")),
    Sketcher.Constraint("DistanceY", -1, 1, 6, 3, Q("3.1505 in")),
])
pad3 = doc.addObject("PartDesign::Pad", "Pad002")
body.addObject(pad3)
pad3.Profile = sketch10
pad3.Length = Q("0.1 in")
body2 = doc.addObject("PartDesign::Body", "Body001")

# Sketch on XY plane
sketch11 = doc.addObject("Sketcher::SketchObject", "Sketch010")
body2.addObject(sketch11)
sketch11.AttachmentSupport = (doc.getObject("XY_Plane001"), [""])
sketch11.MapMode = "FlatFace"
sketch11.AttachmentOffset = App.Placement(V(0, 0, 0.875 * 25.4), App.Rotation())
sketch11.addGeometry([
    Part.LineSegment(V(88.9, 88.9, 0), V(6.35, 88.9, 0)),  # 0
    Part.ArcOfCircle(Part.Circle(V(6.35, 82.55, 0), V(0, 0, 1), 6.35), math.radians(90), math.radians(180)),  # 1
    Part.LineSegment(V(0, 82.55, 0), V(0, 6.35, 0)),  # 2
    Part.ArcOfCircle(Part.Circle(V(6.35, 6.35, 0), V(0, 0, 1), 6.35), math.radians(180), math.radians(270)),  # 3
    Part.LineSegment(V(6.35, 0, 0), V(88.9, 0, 0)),  # 4
    Part.ArcOfCircle(Part.Circle(V(88.9, 44.45, 0), V(0, 0, 1), 44.45), math.radians(-90), math.radians(90)),  # 5
    Part.Circle(V(3.802069, 3.802069, 0), V(0, 0, 1), 1.1303),  # 6
    Part.Circle(V(44.485401, 35.223659, 0), V(0, 0, 1), 1.575),  # 7
    Part.Circle(V(101.462753, 3.802069, 0), V(0, 0, 1), 1.1303),  # 8
    Part.Circle(V(44.485401, 46.223659, 0), V(0, 0, 1), 8.75),  # 9
    Part.Circle(V(44.485401, 57.223659, 0), V(0, 0, 1), 1.575),  # 10
    Part.Circle(V(3.802069, 85.097931, 0), V(0, 0, 1), 1.1303),  # 11
    Part.Circle(V(88.9, 44.45, 0), V(0, 0, 1), 26.67),  # 12
    Part.Circle(V(101.462753, 85.097931, 0), V(0, 0, 1), 1.1303),  # 13
], False)
sketch11.addConstraint([
    Sketcher.Constraint("Tangent", 0, 2, 1, 1),
    Sketcher.Constraint("Tangent", 1, 2, 2, 1),
    Sketcher.Constraint("Tangent", 2, 2, 3, 1),
    Sketcher.Constraint("Tangent", 3, 2, 4, 1),
    Sketcher.Constraint("Tangent", 4, 2, 5, 1),
    Sketcher.Constraint("Tangent", 5, 2, 0, 1),
    Sketcher.Constraint("Horizontal", 0),
    Sketcher.Constraint("Vertical", 2),
    Sketcher.Constraint("Horizontal", 4),
    Sketcher.Constraint("Coincident", 12, 3, 5, 3),
    Sketcher.Constraint("Equal", 1, 3),
    Sketcher.Constraint("Equal", 6, 8),
    Sketcher.Constraint("Equal", 7, 10),
    Sketcher.Constraint("Equal", 8, 11),
    Sketcher.Constraint("Equal", 11, 13),
    Sketcher.Constraint("PointOnObject", 1, 2, -2),
    Sketcher.Constraint("PointOnObject", 3, 2, -1),
    Sketcher.Constraint("Horizontal", 6, 3, 8, 3),
    Sketcher.Constraint("Horizontal", 11, 3, 13, 3),
    Sketcher.Constraint("Vertical", 7, 3, 9, 3),
    Sketcher.Constraint("Vertical", 9, 3, 10, 3),
    Sketcher.Constraint("Vertical", 6, 3, 11, 3),
    Sketcher.Constraint("Vertical", 8, 3, 13, 3),
    Sketcher.Constraint("Diameter", 12, Q("2.1 in")),
    Sketcher.Constraint("DistanceY", 2, 2, 2, 1, Q("3 in")),
    Sketcher.Constraint("Radius", 1, Q("0.25 in")),
    Sketcher.Constraint("Diameter", 6, Q("0.089 in")),
    Sketcher.Constraint("DistanceX", 0, 2, 0, 1, Q("3.25 in")),
    Sketcher.Constraint("Diameter", 7, Q("3.15 mm")),
    Sketcher.Constraint("Diameter", 9, Q("17.5 mm")),
    Sketcher.Constraint("DistanceY", -1, 1, 10, 3, Q("2.2528999 in")),
    Sketcher.Constraint("DistanceX", -1, 1, 7, 3, Q("44.485401 mm")),
    Sketcher.Constraint("DistanceY", 7, 3, 9, 3, Q("11 mm")),
    Sketcher.Constraint("DistanceY", 9, 3, 10, 3, Q("11 mm")),
    Sketcher.Constraint("DistanceX", -1, 1, 6, 3, Q("3.802069 mm")),
    Sketcher.Constraint("DistanceY", -1, 1, 6, 3, Q("3.802069 mm")),
    Sketcher.Constraint("DistanceY", -1, 1, 11, 3, Q("85.097931 mm")),
    Sketcher.Constraint("DistanceX", -1, 1, 8, 3, Q("101.462753 mm")),
])
pad4 = doc.addObject("PartDesign::Pad", "Pad003")
body2.addObject(pad4)
pad4.Profile = sketch11
pad4.Length = Q("0.125 in")

doc.recompute()
